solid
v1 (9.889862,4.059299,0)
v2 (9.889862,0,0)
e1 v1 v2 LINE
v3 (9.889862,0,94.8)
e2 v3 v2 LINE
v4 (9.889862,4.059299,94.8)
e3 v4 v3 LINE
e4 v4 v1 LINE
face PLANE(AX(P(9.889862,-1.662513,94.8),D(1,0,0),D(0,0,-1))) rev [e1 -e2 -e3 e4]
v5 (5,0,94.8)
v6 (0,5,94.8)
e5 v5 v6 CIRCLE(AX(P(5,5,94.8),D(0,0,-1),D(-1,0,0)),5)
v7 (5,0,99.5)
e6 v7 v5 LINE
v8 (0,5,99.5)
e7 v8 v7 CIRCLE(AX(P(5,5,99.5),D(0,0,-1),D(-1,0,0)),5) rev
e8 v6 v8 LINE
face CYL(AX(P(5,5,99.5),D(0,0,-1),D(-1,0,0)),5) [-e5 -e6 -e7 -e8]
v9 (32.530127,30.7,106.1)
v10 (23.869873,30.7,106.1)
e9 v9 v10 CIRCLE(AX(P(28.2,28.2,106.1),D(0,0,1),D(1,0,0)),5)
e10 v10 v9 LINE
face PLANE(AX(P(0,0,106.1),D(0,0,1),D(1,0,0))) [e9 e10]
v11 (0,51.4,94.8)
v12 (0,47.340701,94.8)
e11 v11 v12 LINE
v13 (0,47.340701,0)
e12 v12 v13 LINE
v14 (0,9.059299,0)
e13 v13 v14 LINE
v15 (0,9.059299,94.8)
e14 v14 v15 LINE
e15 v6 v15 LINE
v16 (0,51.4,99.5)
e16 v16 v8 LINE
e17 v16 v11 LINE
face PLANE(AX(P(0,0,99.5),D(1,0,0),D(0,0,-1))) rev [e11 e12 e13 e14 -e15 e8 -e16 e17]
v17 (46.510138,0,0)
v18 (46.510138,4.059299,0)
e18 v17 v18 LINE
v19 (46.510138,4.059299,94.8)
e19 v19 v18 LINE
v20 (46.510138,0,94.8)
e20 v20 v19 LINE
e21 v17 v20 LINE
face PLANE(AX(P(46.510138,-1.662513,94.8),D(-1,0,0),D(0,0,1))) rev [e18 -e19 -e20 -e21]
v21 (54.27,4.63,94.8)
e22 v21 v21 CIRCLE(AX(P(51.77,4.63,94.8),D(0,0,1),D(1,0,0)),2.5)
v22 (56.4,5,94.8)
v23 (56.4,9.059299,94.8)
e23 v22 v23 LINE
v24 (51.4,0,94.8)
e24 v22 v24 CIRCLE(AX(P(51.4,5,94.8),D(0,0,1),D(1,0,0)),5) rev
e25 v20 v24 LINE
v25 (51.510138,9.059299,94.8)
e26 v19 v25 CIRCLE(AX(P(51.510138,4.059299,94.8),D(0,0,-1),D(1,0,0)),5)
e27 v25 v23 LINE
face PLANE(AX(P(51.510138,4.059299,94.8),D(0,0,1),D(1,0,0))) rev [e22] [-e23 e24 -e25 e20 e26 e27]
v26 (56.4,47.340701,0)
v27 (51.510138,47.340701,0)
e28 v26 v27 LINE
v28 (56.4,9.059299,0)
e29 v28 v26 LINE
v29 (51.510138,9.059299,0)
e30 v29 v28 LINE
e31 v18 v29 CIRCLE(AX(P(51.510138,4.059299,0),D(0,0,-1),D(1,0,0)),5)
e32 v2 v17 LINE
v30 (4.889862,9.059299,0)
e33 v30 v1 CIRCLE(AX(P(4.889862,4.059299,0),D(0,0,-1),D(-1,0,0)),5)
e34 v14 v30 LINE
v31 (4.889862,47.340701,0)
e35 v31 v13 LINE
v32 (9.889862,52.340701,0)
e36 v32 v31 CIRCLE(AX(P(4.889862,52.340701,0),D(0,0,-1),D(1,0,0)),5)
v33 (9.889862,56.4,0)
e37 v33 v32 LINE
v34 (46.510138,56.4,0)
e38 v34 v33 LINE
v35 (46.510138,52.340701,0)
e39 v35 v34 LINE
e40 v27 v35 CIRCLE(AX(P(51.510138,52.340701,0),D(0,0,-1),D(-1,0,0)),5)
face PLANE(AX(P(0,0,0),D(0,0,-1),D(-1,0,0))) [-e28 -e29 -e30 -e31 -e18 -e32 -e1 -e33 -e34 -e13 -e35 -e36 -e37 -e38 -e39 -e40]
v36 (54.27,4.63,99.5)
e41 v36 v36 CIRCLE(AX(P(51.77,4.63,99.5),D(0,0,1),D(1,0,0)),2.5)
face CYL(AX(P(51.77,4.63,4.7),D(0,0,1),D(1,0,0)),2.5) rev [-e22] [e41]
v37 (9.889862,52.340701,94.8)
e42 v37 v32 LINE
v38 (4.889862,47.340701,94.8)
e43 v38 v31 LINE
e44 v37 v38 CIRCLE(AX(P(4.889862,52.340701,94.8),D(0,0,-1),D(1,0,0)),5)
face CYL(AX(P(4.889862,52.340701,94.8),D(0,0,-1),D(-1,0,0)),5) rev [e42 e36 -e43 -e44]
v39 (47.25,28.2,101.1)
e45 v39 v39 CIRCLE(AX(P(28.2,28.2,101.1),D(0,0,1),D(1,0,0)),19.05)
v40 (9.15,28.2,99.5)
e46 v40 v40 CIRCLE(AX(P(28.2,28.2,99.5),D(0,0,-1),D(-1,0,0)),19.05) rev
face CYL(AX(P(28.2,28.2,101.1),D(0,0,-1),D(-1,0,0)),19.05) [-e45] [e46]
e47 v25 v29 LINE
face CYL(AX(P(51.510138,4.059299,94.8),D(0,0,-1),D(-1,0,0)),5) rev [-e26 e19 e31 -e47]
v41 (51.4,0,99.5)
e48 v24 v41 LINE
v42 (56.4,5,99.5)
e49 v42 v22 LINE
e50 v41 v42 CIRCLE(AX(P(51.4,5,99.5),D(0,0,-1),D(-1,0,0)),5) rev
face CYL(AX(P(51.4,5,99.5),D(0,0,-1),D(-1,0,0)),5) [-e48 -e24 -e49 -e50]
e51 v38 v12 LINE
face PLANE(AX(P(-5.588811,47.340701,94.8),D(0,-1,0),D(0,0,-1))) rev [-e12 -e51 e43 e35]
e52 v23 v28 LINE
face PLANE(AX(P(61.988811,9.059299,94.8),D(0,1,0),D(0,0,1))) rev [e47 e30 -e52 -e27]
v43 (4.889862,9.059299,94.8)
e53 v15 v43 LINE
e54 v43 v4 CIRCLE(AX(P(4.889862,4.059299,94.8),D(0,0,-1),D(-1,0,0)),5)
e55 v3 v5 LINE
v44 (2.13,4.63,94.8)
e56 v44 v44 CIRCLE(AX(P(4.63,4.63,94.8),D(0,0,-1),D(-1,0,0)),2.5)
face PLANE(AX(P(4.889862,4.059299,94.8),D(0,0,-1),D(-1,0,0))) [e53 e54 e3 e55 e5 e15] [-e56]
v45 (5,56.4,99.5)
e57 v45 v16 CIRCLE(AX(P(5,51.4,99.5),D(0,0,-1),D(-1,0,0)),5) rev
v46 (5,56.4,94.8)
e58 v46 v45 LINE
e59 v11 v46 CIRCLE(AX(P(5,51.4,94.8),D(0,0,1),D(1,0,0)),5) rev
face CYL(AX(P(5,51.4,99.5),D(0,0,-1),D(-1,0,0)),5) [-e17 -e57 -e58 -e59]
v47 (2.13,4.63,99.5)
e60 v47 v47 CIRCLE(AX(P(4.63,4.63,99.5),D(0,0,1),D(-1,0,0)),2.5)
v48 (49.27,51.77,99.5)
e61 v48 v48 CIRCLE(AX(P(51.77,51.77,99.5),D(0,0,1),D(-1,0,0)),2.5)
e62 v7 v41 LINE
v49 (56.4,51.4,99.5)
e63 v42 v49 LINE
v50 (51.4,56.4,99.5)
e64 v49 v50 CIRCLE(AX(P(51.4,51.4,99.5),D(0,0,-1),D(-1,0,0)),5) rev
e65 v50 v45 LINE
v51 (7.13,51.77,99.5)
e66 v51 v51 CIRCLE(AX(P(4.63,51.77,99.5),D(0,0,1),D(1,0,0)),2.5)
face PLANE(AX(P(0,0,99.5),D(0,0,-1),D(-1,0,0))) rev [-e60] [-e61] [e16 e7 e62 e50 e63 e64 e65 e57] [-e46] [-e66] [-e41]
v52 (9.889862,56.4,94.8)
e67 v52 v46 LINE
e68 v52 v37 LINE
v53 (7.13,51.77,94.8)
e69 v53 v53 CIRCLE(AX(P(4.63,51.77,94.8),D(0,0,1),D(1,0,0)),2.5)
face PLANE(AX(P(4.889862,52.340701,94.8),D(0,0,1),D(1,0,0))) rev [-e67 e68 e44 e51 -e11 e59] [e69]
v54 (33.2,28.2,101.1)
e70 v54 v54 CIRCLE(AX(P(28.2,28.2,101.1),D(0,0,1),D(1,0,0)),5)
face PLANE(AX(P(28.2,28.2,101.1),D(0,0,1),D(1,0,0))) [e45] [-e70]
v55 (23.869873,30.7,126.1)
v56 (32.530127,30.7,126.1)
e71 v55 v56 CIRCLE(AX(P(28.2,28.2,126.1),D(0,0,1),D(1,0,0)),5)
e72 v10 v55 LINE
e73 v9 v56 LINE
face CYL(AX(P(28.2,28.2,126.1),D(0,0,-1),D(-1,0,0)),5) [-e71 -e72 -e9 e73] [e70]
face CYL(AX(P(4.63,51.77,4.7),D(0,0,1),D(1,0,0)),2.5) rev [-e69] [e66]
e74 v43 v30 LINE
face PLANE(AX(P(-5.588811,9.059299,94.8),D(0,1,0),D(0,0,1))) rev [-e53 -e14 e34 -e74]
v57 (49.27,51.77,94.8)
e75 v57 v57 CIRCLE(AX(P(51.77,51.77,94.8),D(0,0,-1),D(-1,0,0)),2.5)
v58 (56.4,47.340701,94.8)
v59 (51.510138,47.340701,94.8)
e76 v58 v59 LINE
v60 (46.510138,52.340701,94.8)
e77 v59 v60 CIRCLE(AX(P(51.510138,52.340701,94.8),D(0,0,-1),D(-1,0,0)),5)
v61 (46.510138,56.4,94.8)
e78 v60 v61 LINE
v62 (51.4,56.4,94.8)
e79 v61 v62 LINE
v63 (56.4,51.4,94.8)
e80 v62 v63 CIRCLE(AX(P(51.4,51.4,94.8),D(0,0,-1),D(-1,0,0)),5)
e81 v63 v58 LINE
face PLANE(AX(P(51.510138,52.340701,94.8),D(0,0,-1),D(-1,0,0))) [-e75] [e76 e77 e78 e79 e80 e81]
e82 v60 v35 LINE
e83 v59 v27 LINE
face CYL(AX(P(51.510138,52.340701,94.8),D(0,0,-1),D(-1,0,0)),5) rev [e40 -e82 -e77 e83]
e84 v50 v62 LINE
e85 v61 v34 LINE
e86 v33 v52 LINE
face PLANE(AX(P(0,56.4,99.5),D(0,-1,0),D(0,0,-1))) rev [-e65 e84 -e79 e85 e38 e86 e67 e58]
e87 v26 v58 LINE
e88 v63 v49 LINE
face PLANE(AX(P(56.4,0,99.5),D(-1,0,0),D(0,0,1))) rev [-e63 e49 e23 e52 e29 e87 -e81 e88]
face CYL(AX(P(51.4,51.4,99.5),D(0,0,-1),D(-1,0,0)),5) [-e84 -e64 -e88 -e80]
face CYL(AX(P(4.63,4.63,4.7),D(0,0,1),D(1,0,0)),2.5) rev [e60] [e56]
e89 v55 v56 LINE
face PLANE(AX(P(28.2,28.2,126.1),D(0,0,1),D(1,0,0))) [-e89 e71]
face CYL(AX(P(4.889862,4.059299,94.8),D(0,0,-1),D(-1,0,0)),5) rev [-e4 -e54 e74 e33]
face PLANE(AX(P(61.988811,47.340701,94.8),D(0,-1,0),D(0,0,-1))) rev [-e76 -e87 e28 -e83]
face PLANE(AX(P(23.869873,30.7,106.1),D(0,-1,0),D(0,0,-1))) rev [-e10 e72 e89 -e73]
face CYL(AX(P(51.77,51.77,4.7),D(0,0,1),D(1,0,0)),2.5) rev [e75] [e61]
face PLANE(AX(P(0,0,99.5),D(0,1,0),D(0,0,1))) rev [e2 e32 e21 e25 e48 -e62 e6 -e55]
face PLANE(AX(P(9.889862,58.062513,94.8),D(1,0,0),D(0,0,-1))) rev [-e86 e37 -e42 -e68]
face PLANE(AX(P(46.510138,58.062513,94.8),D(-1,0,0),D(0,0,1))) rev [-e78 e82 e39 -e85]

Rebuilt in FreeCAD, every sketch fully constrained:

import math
import FreeCAD as App
import Part
import Sketcher


def edges_at(feature, points):
    """Names of the edges that pass closest to the given points."""
    edges = feature.Shape.Edges
    near = lambda p: min(range(len(edges)), key=lambda i: edges[i].distToShape(Part.Vertex(*p))[0])
    return sorted({f"Edge{near(p) + 1}" for p in points})

doc = App.newDocument("Part")
body = doc.addObject("PartDesign::Body", "Body")

# Sketch on XY plane
sketch1 = body.newObject("Sketcher::SketchObject", "Sketch")
sketch1.AttachmentSupport = (doc.getObject("XY_Plane"), [""])
sketch1.MapMode = "FlatFace"
sketch1.addGeometry(Part.LineSegment(App.Vector(0, 56, 0), App.Vector(0, 0, 0)), False)
sketch1.addGeometry(Part.LineSegment(App.Vector(0, 0, 0), App.Vector(56, 0, 0)), False)
sketch1.addGeometry(Part.LineSegment(App.Vector(56, 0, 0), App.Vector(56, 56, 0)), False)
sketch1.addGeometry(Part.LineSegment(App.Vector(56, 56, 0), App.Vector(0, 56, 0)), False)
sketch1.addConstraint(Sketcher.Constraint("Coincident", 0, 2, 1, 1))
sketch1.addConstraint(Sketcher.Constraint("Coincident", 1, 2, 2, 1))
sketch1.addConstraint(Sketcher.Constraint("Coincident", 2, 2, 3, 1))
sketch1.addConstraint(Sketcher.Constraint("Coincident", 3, 2, 0, 1))
sketch1.addConstraint(Sketcher.Constraint("Vertical", 0))
sketch1.addConstraint(Sketcher.Constraint("Horizontal", 1))
sketch1.addConstraint(Sketcher.Constraint("Vertical", 2))
sketch1.addConstraint(Sketcher.Constraint("Horizontal", 3))
sketch1.addConstraint(Sketcher.Constraint("Coincident", 0, 2, -1, 1))
sketch1.addConstraint(Sketcher.Constraint("Equal", 3, 0))
sketch1.addConstraint(Sketcher.Constraint("DistanceX", 1, 1, 1, 2, 56.4))
pad1 = body.newObject("PartDesign::Pad", "Pad")
pad1.Profile = sketch1
pad1.Length = 99.5

# Sketch on XY plane
sketch2 = body.newObject("Sketcher::SketchObject", "Sketch001")
sketch2.AttachmentSupport = (doc.getObject("XY_Plane"), [""])
sketch2.MapMode = "FlatFace"
sketch2.AttachmentOffset = App.Placement(App.Vector(0, 0, 99.5), App.Rotation())
sketch2.addGeometry(Part.Circle(App.Vector(28, 28, 0), App.Vector(0, 0, 1), 19), False)
sketch2.addConstraint(Sketcher.Constraint("Diameter", 0, 38.1))
sketch2.addConstraint(Sketcher.Constraint("DistanceX", -1, 1, 0, 3, 28.2))
sketch2.addConstraint(Sketcher.Constraint("DistanceY", -1, 1, 0, 3, 28.2))
pad2 = body.newObject("PartDesign::Pad", "Pad001")
pad2.Profile = sketch2
pad2.Length = 1.6

# Sketch on XY plane
sketch3 = body.newObject("Sketcher::SketchObject", "Sketch002")
sketch3.AttachmentSupport = (doc.getObject("XY_Plane"), [""])
sketch3.MapMode = "FlatFace"
sketch3.AttachmentOffset = App.Placement(App.Vector(0, 0, 101.1), App.Rotation())
sketch3.addGeometry(Part.Circle(App.Vector(28, 28, 0), App.Vector(0, 0, 1), 5), False)
sketch3.addConstraint(Sketcher.Constraint("Diameter", 0, 10.0))
sketch3.addConstraint(Sketcher.Constraint("DistanceX", -1, 1, 0, 3, 28.2))
sketch3.addConstraint(Sketcher.Constraint("DistanceY", -1, 1, 0, 3, 28.2))
pad3 = body.newObject("PartDesign::Pad", "Pad002")
pad3.Profile = sketch3
pad3.Length = 25

# Sketch on XY plane
sketch4 = body.newObject("Sketcher::SketchObject", "Sketch003")
sketch4.AttachmentSupport = (doc.getObject("XY_Plane"), [""])
sketch4.MapMode = "FlatFace"
sketch4.AttachmentOffset = App.Placement(App.Vector(0, 0, 126.1), App.Rotation())
sketch4.addGeometry(Part.LineSegment(App.Vector(24, 37, 0), App.Vector(24, 31, 0)), False)
sketch4.addGeometry(Part.LineSegment(App.Vector(24, 31, 0), App.Vector(33, 31, 0)), False)
sketch4.addGeometry(Part.LineSegment(App.Vector(33, 31, 0), App.Vector(33, 37, 0)), False)
sketch4.addGeometry(Part.LineSegment(App.Vector(33, 37, 0), App.Vector(24, 37, 0)), False)
sketch4.addConstraint(Sketcher.Constraint("Coincident", 0, 2, 1, 1))
sketch4.addConstraint(Sketcher.Constraint("Coincident", 1, 2, 2, 1))
sketch4.addConstraint(Sketcher.Constraint("Coincident", 2, 2, 3, 1))
sketch4.addConstraint(Sketcher.Constraint("Coincident", 3, 2, 0, 1))
sketch4.addConstraint(Sketcher.Constraint("Vertical", 0))
sketch4.addConstraint(Sketcher.Constraint("Horizontal", 1))
sketch4.addConstraint(Sketcher.Constraint("Vertical", 2))
sketch4.addConstraint(Sketcher.Constraint("Horizontal", 3))
sketch4.addConstraint(Sketcher.Constraint("DistanceY", -1, 1, 0, 2, 30.7))
sketch4.addConstraint(Sketcher.Constraint("DistanceX", 1, 1, 1, 2, 8.660254))
sketch4.addConstraint(Sketcher.Constraint("DistanceY", 0, 2, 0, 1, 6.029223))
sketch4.addConstraint(Sketcher.Constraint("DistanceX", -1, 1, 0, 2, 23.869873))
pocket1 = body.newObject("PartDesign::Pocket", "Pocket")
pocket1.Profile = sketch4
pocket1.Length = 20

# Sketch on XY plane
sketch5 = body.newObject("Sketcher::SketchObject", "Sketch004")
sketch5.AttachmentSupport = (doc.getObject("XY_Plane"), [""])
sketch5.MapMode = "FlatFace"
sketch5.addGeometry(Part.LineSegment(App.Vector(47, 58, 0), App.Vector(62, 58, 0)), False)
sketch5.addGeometry(Part.LineSegment(App.Vector(62, 58, 0), App.Vector(62, 47, 0)), False)
sketch5.addGeometry(Part.LineSegment(App.Vector(62, 47, 0), App.Vector(52, 47, 0)), False)
sketch5.addGeometry(Part.ArcOfCircle(Part.Circle(App.Vector(52, 52, 0), App.Vector(0, 0, 1), 5), math.radians(180), math.radians(270)), False)
sketch5.addGeometry(Part.LineSegment(App.Vector(47, 52, 0), App.Vector(47, 58, 0)), False)
sketch5.addGeometry(Part.LineSegment(App.Vector(10, 58, 0), App.Vector(10, 52, 0)), False)
sketch5.addGeometry(Part.ArcOfCircle(Part.Circle(App.Vector(5, 52, 0), App.Vector(0, 0, 1), 5), math.radians(-90), math.radians(0)), False)
sketch5.addGeometry(Part.LineSegment(App.Vector(5, 47, 0), App.Vector(-6, 47, 0)), False)
sketch5.addGeometry(Part.LineSegment(App.Vector(-6, 47, 0), App.Vector(-6, 58, 0)), False)
sketch5.addGeometry(Part.LineSegment(App.Vector(-6, 58, 0), App.Vector(10, 58, 0)), False)
sketch5.addGeometry(Part.LineSegment(App.Vector(10, -2, 0), App.Vector(-6, -2, 0)), False)
sketch5.addGeometry(Part.LineSegment(App.Vector(-6, -2, 0), App.Vector(-6, 9, 0)), False)
sketch5.addGeometry(Part.LineSegment(App.Vector(-6, 9, 0), App.Vector(5, 9, 0)), False)
sketch5.addGeometry(Part.ArcOfCircle(Part.Circle(App.Vector(5, 4, 0), App.Vector(0, 0, 1), 5), math.radians(0), math.radians(90)), False)
sketch5.addGeometry(Part.LineSegment(App.Vector(10, 4, 0), App.Vector(10, -2, 0)), False)
sketch5.addGeometry(Part.LineSegment(App.Vector(47, -2, 0), App.Vector(47, 4, 0)), False)
sketch5.addGeometry(Part.ArcOfCircle(Part.Circle(App.Vector(52, 4, 0), App.Vector(0, 0, 1), 5), math.radians(90), math.radians(180)), False)
sketch5.addGeometry(Part.LineSegment(App.Vector(52, 9, 0), App.Vector(62, 9, 0)), False)
sketch5.addGeometry(Part.LineSegment(App.Vector(62, 9, 0), App.Vector(62, -2, 0)), False)
sketch5.addGeometry(Part.LineSegment(App.Vector(62, -2, 0), App.Vector(47, -2, 0)), False)
sketch5.addConstraint(Sketcher.Constraint("Coincident", 0, 2, 1, 1))
sketch5.addConstraint(Sketcher.Constraint("Coincident", 1, 2, 2, 1))
sketch5.addConstraint(Sketcher.Constraint("Tangent", 2, 2, 3, 2))
sketch5.addConstraint(Sketcher.Constraint("Tangent", 3, 1, 4, 1))
sketch5.addConstraint(Sketcher.Constraint("Coincident", 4, 2, 0, 1))
sketch5.addConstraint(Sketcher.Constraint("Tangent", 5, 2, 6, 2))
sketch5.addConstraint(Sketcher.Constraint("Tangent", 6, 1, 7, 1))
sketch5.addConstraint(Sketcher.Constraint("Coincident", 7, 2, 8, 1))
sketch5.addConstraint(Sketcher.Constraint("Coincident", 8, 2, 9, 1))
sketch5.addConstraint(Sketcher.Constraint("Coincident", 9, 2, 5, 1))
sketch5.addConstraint(Sketcher.Constraint("Coincident", 10, 2, 11, 1))
sketch5.addConstraint(Sketcher.Constraint("Coincident", 11, 2, 12, 1))
sketch5.addConstraint(Sketcher.Constraint("Tangent", 12, 2, 13, 2))
sketch5.addConstraint(Sketcher.Constraint("Tangent", 13, 1, 14, 1))
sketch5.addConstraint(Sketcher.Constraint("Coincident", 14, 2, 10, 1))
sketch5.addConstraint(Sketcher.Constraint("Tangent", 15, 2, 16, 2))
sketch5.addConstraint(Sketcher.Constraint("Tangent", 16, 1, 17, 1))
sketch5.addConstraint(Sketcher.Constraint("Coincident", 17, 2, 18, 1))
sketch5.addConstraint(Sketcher.Constraint("Coincident", 18, 2, 19, 1))
sketch5.addConstraint(Sketcher.Constraint("Coincident", 19, 2, 15, 1))
sketch5.addConstraint(Sketcher.Constraint("Horizontal", 0))
sketch5.addConstraint(Sketcher.Constraint("Vertical", 1))
sketch5.addConstraint(Sketcher.Constraint("Horizontal", 2))
sketch5.addConstraint(Sketcher.Constraint("Vertical", 4))
sketch5.addConstraint(Sketcher.Constraint("Vertical", 5))
sketch5.addConstraint(Sketcher.Constraint("Horizontal", 7))
sketch5.addConstraint(Sketcher.Constraint("Vertical", 8))
sketch5.addConstraint(Sketcher.Constraint("Horizontal", 9))
sketch5.addConstraint(Sketcher.Constraint("Horizontal", 10))
sketch5.addConstraint(Sketcher.Constraint("Vertical", 11))
sketch5.addConstraint(Sketcher.Constraint("Horizontal", 12))
sketch5.addConstraint(Sketcher.Constraint("Vertical", 14))
sketch5.addConstraint(Sketcher.Constraint("Vertical", 15))
sketch5.addConstraint(Sketcher.Constraint("Horizontal", 17))
sketch5.addConstraint(Sketcher.Constraint("Vertical", 18))
sketch5.addConstraint(Sketcher.Constraint("Horizontal", 19))
sketch5.addConstraint(Sketcher.Constraint("Equal", 3, 6))
sketch5.addConstraint(Sketcher.Constraint("Equal", 6, 13))
sketch5.addConstraint(Sketcher.Constraint("Equal", 13, 16))
sketch5.addConstraint(Sketcher.Constraint("Horizontal", 3, 3, 6, 3))
sketch5.addConstraint(Sketcher.Constraint("Horizontal", 13, 3, 16, 3))
sketch5.addConstraint(Sketcher.Constraint("Horizontal", 4, 2, 8, 2))
sketch5.addConstraint(Sketcher.Constraint("Horizontal", 14, 2, 18, 2))
sketch5.addConstraint(Sketcher.Constraint("Vertical", 6, 3, 13, 3))
sketch5.addConstraint(Sketcher.Constraint("Vertical", 3, 3, 16, 3))
sketch5.addConstraint(Sketcher.Constraint("Vertical", 8, 2, 10, 2))
sketch5.addConstraint(Sketcher.Constraint("Vertical", 1, 2, 17, 2))
sketch5.addConstraint(Sketcher.Constraint("Equal", 2, 7))
sketch5.addConstraint(Sketcher.Constraint("Equal", 8, 11))
sketch5.addConstraint(Sketcher.Constraint("Radius", 3, 5.0))
sketch5.addConstraint(Sketcher.Constraint("DistanceY", -1, 1, 3, 3, 52.340701))
sketch5.addConstraint(Sketcher.Constraint("DistanceY", -1, 1, 13, 3, 4.059299))
sketch5.addConstraint(Sketcher.Constraint("DistanceX", 0, 1, 0, 2, 15.478673))
sketch5.addConstraint(Sketcher.Constraint("DistanceY", 1, 2, 1, 1, 10.721813))
sketch5.addConstraint(Sketcher.Constraint("DistanceX", -1, 1, 0, 2, 61.988811))
sketch5.addConstraint(Sketcher.Constraint("DistanceX", 7, 2, -1, 1, 5.588811))
pocket2 = body.newObject("PartDesign::Pocket", "Pocket001")
pocket2.Profile = sketch5
pocket2.Length = 94.8
pocket2.Reversed = True

# Sketch on XY plane
sketch6 = body.newObject("Sketcher::SketchObject", "Sketch005")
sketch6.AttachmentSupport = (doc.getObject("XY_Plane"), [""])
sketch6.MapMode = "FlatFace"
sketch6.AttachmentOffset = App.Placement(App.Vector(0, 0, 99.5), App.Rotation())
sketch6.addGeometry(Part.Circle(App.Vector(4.6, 51.8, 0), App.Vector(0, 0, 1), 2.5), False)
sketch6.addGeometry(Part.Circle(App.Vector(51.8, 51.8, 0), App.Vector(0, 0, 1), 2.5), False)
sketch6.addGeometry(Part.Circle(App.Vector(51.8, 4.6, 0), App.Vector(0, 0, 1), 2.5), False)
sketch6.addGeometry(Part.Circle(App.Vector(4.6, 4.6, 0), App.Vector(0, 0, 1), 2.5), False)
sketch6.addConstraint(Sketcher.Constraint("Equal", 0, 1))
sketch6.addConstraint(Sketcher.Constraint("Equal", 1, 2))
sketch6.addConstraint(Sketcher.Constraint("Equal", 2, 3))
sketch6.addConstraint(Sketcher.Constraint("Horizontal", 0, 3, 1, 3))
sketch6.addConstraint(Sketcher.Constraint("Horizontal", 2, 3, 3, 3))
sketch6.addConstraint(Sketcher.Constraint("Vertical", 1, 3, 2, 3))
sketch6.addConstraint(Sketcher.Constraint("Vertical", 0, 3, 3, 3))
sketch6.addConstraint(Sketcher.Constraint("Diameter", 0, 5.0))
sketch6.addConstraint(Sketcher.Constraint("DistanceX", -1, 1, 0, 3, 4.63))
sketch6.addConstraint(Sketcher.Constraint("DistanceY", -1, 1, 0, 3, 51.77))
sketch6.addConstraint(Sketcher.Constraint("DistanceX", -1, 1, 1, 3, 51.77))
sketch6.addConstraint(Sketcher.Constraint("DistanceY", -1, 1, 2, 3, 4.63))
pocket3 = body.newObject("PartDesign::Pocket", "Pocket002")
pocket3.Profile = sketch6
pocket3.Length = 94.8
doc.recompute()

fillet = body.newObject("PartDesign::Fillet", "Fillet")
fillet.Base = (pocket3, edges_at(pocket3, [
    (0, 56.4, 97.15),
    (56.4, 56.4, 97.15),
    (56.4, 0, 97.15),
    (0, 0, 97.15),
]))
fillet.Radius = 5

doc.recompute()
